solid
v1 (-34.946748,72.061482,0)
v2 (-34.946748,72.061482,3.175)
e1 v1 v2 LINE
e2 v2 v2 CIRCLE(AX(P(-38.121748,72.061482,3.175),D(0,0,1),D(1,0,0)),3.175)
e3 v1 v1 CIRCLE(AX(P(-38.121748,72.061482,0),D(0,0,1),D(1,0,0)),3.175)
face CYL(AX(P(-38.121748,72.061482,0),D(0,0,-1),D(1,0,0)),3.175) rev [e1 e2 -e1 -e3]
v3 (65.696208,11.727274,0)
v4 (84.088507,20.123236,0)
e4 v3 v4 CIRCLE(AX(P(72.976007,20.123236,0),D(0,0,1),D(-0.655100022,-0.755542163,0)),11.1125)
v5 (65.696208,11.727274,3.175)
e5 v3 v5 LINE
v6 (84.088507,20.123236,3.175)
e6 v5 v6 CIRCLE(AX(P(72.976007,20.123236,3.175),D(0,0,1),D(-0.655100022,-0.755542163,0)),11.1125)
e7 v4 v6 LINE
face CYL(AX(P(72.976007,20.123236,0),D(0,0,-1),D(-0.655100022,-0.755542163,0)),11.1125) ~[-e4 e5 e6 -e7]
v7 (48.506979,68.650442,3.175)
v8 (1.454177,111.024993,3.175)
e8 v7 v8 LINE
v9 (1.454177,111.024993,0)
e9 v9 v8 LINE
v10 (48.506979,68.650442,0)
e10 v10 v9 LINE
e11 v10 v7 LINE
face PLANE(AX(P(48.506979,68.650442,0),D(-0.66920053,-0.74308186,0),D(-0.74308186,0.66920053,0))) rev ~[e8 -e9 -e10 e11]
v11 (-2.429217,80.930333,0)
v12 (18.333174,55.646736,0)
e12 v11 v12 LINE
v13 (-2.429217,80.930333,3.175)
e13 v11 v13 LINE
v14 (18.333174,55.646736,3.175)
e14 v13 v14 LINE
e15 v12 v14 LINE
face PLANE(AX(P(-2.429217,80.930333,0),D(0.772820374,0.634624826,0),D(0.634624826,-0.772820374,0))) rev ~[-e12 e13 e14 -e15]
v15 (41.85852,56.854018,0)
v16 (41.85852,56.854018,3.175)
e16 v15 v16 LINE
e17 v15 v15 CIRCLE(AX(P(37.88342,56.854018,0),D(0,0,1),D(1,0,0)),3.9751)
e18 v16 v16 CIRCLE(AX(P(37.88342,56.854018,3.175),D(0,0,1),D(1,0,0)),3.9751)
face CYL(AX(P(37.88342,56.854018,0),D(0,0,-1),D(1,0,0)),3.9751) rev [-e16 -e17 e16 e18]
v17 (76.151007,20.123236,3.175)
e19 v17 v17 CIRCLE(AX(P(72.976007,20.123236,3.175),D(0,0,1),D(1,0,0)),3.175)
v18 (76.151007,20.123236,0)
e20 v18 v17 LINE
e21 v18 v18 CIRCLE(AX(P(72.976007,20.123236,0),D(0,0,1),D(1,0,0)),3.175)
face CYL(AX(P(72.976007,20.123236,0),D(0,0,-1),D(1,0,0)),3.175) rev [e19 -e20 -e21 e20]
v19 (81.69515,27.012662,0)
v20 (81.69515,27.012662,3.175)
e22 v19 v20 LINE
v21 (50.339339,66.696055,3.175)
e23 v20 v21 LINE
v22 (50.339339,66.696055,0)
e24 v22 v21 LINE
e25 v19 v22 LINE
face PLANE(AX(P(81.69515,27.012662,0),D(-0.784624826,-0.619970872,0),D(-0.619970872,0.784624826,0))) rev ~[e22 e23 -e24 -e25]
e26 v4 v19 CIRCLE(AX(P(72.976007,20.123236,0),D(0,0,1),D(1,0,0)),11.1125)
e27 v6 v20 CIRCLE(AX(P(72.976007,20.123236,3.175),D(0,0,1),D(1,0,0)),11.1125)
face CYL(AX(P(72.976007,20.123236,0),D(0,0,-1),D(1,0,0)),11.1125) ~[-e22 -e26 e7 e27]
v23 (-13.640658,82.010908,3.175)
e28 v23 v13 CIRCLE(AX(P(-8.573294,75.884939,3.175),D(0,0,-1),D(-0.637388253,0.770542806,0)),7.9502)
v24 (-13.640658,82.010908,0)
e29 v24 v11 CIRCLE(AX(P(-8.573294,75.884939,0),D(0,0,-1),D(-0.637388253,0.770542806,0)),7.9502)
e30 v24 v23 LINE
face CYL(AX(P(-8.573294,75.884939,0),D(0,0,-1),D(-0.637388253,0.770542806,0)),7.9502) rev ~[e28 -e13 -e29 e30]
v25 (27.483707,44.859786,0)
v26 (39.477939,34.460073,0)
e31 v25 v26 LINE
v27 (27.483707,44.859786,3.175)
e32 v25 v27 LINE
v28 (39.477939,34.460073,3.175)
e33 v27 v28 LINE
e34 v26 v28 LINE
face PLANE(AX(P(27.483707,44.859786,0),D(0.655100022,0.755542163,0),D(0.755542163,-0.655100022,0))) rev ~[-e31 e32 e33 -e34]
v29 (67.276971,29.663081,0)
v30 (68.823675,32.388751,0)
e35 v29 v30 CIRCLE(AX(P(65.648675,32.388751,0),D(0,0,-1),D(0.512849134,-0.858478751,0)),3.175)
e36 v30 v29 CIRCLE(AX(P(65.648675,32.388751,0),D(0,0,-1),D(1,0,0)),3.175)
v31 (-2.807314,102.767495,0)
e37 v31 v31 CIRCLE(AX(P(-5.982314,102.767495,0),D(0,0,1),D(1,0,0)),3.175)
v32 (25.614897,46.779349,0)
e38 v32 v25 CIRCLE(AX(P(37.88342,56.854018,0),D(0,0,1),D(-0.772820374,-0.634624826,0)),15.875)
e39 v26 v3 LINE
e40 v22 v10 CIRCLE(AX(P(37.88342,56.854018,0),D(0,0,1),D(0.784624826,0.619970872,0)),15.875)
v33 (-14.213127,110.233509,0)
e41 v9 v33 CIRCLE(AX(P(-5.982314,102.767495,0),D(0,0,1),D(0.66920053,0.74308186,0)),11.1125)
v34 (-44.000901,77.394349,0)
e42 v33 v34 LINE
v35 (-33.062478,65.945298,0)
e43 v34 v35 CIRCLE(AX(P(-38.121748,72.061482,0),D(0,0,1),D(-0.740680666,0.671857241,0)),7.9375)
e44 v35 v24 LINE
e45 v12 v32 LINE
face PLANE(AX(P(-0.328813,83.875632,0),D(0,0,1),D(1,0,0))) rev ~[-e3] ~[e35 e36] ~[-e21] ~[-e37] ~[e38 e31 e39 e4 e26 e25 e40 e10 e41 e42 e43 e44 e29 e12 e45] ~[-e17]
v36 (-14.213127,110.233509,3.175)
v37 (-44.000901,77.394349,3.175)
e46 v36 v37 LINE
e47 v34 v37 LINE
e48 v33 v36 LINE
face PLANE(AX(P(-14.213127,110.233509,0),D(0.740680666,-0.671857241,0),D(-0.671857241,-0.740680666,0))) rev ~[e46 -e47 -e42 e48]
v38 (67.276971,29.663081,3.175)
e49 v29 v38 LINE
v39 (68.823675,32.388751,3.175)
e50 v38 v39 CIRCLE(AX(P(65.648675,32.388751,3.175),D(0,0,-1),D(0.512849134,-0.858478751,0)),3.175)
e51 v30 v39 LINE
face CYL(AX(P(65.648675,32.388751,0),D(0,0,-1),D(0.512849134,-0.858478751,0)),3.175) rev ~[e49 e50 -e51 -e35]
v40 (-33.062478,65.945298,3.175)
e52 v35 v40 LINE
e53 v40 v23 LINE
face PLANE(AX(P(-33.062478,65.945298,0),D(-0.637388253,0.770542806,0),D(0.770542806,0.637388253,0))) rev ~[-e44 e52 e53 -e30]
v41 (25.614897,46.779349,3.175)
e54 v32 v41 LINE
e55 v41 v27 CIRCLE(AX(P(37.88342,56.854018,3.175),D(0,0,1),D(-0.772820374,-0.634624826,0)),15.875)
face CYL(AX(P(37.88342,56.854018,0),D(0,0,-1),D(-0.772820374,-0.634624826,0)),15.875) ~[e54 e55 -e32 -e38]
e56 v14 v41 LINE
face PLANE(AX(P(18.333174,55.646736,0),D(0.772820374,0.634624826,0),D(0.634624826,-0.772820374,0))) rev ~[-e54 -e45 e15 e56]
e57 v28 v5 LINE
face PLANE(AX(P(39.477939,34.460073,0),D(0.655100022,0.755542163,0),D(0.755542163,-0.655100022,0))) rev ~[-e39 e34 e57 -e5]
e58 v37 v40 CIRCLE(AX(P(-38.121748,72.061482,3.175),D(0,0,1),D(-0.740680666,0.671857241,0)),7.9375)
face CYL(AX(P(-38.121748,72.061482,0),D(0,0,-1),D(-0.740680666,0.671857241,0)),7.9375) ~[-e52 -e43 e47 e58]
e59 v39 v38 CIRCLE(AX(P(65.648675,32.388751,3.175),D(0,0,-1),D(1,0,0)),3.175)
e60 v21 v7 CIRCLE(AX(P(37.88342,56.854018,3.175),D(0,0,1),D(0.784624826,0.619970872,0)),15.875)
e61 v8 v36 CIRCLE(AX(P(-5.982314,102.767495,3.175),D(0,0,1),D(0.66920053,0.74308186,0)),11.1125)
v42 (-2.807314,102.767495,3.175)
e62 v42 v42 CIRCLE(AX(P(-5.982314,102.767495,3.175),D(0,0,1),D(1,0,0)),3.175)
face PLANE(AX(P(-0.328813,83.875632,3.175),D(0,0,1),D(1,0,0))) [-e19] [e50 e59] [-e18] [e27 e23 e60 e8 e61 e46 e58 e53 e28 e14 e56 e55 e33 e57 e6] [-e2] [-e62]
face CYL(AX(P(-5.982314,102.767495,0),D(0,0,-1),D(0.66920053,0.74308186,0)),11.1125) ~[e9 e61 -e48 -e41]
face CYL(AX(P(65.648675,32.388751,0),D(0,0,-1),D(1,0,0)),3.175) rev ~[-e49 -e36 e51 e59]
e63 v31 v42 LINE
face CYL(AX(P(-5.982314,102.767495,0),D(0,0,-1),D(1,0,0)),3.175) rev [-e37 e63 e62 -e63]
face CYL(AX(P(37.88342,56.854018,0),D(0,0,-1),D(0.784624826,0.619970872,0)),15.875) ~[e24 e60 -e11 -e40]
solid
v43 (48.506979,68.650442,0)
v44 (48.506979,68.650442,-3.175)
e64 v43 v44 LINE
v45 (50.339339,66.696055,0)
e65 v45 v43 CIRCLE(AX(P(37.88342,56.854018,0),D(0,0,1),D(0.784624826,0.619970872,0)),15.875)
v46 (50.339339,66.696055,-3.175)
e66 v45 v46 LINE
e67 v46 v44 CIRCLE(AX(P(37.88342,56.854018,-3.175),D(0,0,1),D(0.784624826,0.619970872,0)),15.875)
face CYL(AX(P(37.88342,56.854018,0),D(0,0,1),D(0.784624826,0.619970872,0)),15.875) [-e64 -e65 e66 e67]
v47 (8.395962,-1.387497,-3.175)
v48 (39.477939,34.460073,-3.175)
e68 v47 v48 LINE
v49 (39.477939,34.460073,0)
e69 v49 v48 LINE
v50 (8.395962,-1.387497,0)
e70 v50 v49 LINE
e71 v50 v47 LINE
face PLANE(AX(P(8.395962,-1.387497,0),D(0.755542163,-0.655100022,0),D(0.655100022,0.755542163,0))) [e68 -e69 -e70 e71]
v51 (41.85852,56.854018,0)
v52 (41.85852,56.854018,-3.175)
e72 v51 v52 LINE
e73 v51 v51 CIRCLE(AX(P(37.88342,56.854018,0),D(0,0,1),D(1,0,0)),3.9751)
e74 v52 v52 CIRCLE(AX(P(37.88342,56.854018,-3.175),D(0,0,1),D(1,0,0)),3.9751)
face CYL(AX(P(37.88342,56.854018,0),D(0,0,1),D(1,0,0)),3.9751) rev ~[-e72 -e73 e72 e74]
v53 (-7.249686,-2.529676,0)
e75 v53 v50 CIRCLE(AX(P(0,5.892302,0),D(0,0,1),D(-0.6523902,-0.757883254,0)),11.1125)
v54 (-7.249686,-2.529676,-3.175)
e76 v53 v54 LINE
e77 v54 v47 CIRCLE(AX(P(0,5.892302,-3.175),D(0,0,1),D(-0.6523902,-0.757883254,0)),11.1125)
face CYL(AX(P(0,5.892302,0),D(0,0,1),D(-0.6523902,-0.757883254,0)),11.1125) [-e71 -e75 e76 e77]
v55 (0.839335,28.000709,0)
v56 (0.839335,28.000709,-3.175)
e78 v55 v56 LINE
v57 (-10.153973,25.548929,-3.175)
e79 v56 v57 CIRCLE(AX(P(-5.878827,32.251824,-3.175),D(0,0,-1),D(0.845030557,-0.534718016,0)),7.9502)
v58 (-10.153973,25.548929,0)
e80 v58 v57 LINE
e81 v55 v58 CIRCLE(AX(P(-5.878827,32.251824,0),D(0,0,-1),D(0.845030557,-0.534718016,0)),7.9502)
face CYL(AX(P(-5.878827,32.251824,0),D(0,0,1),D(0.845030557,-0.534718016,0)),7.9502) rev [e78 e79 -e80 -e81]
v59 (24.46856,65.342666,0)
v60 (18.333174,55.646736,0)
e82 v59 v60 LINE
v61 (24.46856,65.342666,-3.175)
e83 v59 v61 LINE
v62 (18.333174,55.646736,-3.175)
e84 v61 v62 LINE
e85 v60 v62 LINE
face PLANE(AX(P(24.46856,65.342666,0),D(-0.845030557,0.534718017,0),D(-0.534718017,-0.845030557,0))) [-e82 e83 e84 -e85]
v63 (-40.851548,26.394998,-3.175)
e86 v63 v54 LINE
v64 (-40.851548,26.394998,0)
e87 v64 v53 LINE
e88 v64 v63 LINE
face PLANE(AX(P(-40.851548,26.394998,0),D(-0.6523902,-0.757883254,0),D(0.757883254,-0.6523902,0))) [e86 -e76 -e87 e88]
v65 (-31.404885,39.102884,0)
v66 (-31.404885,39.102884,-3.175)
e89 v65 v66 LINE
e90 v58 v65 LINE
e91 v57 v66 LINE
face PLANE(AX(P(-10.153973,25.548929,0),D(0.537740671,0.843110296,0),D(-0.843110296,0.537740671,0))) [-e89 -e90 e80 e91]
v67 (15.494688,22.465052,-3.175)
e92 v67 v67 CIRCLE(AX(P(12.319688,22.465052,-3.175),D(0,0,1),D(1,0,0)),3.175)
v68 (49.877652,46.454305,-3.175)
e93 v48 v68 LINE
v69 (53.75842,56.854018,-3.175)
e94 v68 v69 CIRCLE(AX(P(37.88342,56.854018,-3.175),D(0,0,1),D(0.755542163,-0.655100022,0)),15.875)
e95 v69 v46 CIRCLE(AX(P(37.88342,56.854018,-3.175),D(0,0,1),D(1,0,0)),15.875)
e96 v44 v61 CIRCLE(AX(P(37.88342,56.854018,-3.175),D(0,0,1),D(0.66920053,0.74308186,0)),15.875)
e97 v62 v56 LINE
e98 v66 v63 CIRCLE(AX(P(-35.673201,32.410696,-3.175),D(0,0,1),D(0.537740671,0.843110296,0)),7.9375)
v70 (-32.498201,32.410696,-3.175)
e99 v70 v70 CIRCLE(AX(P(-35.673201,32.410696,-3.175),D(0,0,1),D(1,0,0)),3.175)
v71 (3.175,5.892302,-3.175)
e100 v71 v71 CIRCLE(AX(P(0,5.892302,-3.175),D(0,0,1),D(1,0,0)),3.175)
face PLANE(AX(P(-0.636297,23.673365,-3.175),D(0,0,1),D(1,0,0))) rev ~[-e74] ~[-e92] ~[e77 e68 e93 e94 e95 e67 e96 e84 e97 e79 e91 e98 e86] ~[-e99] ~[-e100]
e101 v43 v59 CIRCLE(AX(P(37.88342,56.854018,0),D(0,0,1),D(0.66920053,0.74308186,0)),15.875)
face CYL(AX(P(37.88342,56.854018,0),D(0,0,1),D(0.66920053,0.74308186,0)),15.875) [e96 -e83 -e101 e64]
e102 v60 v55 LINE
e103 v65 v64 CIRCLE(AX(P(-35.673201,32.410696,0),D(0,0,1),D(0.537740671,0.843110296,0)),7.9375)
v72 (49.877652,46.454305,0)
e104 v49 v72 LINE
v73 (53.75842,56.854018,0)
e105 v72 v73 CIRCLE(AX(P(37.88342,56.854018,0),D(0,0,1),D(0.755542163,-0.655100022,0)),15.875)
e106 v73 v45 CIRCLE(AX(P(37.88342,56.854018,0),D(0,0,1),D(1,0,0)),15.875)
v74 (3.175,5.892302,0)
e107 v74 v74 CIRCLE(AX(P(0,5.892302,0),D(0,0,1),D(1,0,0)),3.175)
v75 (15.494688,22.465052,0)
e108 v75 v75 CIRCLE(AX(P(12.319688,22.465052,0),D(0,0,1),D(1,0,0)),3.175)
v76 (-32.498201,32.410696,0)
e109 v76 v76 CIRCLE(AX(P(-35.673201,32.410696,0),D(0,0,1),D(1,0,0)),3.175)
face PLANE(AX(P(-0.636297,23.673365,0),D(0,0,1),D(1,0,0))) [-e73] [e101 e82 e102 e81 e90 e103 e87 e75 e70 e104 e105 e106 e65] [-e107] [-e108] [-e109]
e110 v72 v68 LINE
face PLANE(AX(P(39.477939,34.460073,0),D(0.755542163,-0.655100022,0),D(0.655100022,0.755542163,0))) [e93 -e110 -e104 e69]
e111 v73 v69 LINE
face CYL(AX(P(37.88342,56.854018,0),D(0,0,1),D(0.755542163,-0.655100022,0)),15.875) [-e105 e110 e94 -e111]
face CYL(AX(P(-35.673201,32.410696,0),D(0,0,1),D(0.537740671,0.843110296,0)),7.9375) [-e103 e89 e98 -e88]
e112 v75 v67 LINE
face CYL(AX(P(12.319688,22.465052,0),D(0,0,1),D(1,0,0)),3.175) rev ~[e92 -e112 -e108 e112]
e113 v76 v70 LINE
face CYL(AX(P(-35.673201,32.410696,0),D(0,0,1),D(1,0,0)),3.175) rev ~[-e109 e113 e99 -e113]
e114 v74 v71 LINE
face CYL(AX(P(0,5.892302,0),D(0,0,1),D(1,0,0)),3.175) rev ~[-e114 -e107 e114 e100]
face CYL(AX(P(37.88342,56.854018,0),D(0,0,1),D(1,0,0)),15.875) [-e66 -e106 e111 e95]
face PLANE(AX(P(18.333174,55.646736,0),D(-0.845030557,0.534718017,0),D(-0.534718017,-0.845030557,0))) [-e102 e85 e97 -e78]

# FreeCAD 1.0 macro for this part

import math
import FreeCAD as App
import Part
import Sketcher

V = App.Vector
Q = App.Units.Quantity

doc = App.newDocument("Part")
body = doc.addObject("PartDesign::Body", "Body")

# Sketch on XY plane
sketch1 = body.newObject("Sketcher::SketchObject", "Sketch")
sketch1.AttachmentSupport = (doc.getObject("XY_Plane"), [""])
sketch1.MapMode = "FlatFace"
sketch1.addGeometry([
    Part.LineSegment(V(-14.213127, 110.233509, 0), V(-44.000901, 77.394349, 0)),  # 0
    Part.ArcOfCircle(Part.Circle(V(-38.121748, 72.061482, 0), V(0, 0, 1), 7.9375), math.radians(137.78943), math.radians(309.597343)),  # 1
    Part.LineSegment(V(-33.062478, 65.945298, 0), V(-13.640658, 82.010908, 0)),  # 2
    Part.ArcOfCircle(Part.Circle(V(-8.573294, 75.884939, 0), V(0, 0, 1), 7.9502), math.radians(39.392164), math.radians(129.597343)),  # 3
    Part.LineSegment(V(-2.429217, 80.930333, 0), V(18.333174, 55.646736, 0)),  # 4
    Part.LineSegment(V(18.333174, 55.646736, 0), V(25.614897, 46.779349, 0)),  # 5
    Part.ArcOfCircle(Part.Circle(V(37.88342, 56.854018, 0), V(0, 0, 1), 15.875), math.radians(-140.607836), math.radians(-130.927235)),  # 6
    Part.LineSegment(V(27.483707, 44.859786, 0), V(39.477939, 34.460073, 0)),  # 7
    Part.LineSegment(V(39.477939, 34.460073, 0), V(65.696208, 11.727274, 0)),  # 8
    Part.ArcOfCircle(Part.Circle(V(72.976007, 20.123236, 0), V(0, 0, 1), 11.1125), math.radians(-130.927235), math.radians(0)),  # 9
    Part.ArcOfCircle(Part.Circle(V(72.976007, 20.123236, 0), V(0, 0, 1), 11.1125), math.radians(0), math.radians(38.314007)),  # 10
    Part.LineSegment(V(81.69515, 27.012662, 0), V(50.339339, 66.696055, 0)),  # 11
    Part.ArcOfCircle(Part.Circle(V(37.88342, 56.854018, 0), V(0, 0, 1), 15.875), math.radians(38.314007), math.radians(47.994609)),  # 12
    Part.LineSegment(V(48.506979, 68.650442, 0), V(1.454177, 111.024993, 0)),  # 13
    Part.ArcOfCircle(Part.Circle(V(-5.982314, 102.767495, 0), V(0, 0, 1), 11.1125), math.radians(47.994609), math.radians(137.78943)),  # 14
    Part.Circle(V(72.976007, 20.123236, 0), V(0, 0, 1), 3.175),  # 15
    Part.ArcOfCircle(Part.Circle(V(65.648675, 32.388751, 0), V(0, 0, 1), 3.175), math.radians(-59.146204), math.radians(0)),  # 16
    Part.ArcOfCircle(Part.Circle(V(65.648675, 32.388751, 0), V(0, 0, 1), 3.175), math.radians(0), math.radians(300.853796)),  # 17
    Part.Circle(V(37.88342, 56.854018, 0), V(0, 0, 1), 3.9751),  # 18
    Part.Circle(V(-38.121748, 72.061482, 0), V(0, 0, 1), 3.175),  # 19
    Part.Circle(V(-5.982314, 102.767495, 0), V(0, 0, 1), 3.175),  # 20
], False)
sketch1.addConstraint([
    Sketcher.Constraint("Tangent", 0, 2, 1, 1),
    Sketcher.Constraint("Tangent", 1, 2, 2, 1),
    Sketcher.Constraint("Tangent", 2, 2, 3, 2),
    Sketcher.Constraint("Tangent", 3, 1, 4, 1),
    Sketcher.Constraint("Coincident", 4, 2, 5, 1),
    Sketcher.Constraint("Tangent", 5, 2, 6, 1),
    Sketcher.Constraint("Tangent", 6, 2, 7, 1),
    Sketcher.Constraint("Coincident", 7, 2, 8, 1),
    Sketcher.Constraint("Tangent", 8, 2, 9, 1),
    Sketcher.Constraint("Tangent", 9, 2, 10, 1),
    Sketcher.Constraint("Tangent", 10, 2, 11, 1),
    Sketcher.Constraint("Tangent", 11, 2, 12, 1),
    Sketcher.Constraint("Tangent", 12, 2, 13, 1),
    Sketcher.Constraint("Tangent", 13, 2, 14, 1),
    Sketcher.Constraint("Tangent", 14, 2, 0, 1),
    Sketcher.Constraint("Tangent", 16, 1, 17, 2),
    Sketcher.Constraint("Coincident", 17, 1, 16, 2),
    Sketcher.Constraint("Coincident", 12, 3, 6, 3),
    Sketcher.Constraint("Coincident", 15, 3, 9, 3),
    Sketcher.Constraint("Coincident", 18, 3, 6, 3),
    Sketcher.Constraint("Coincident", 19, 3, 1, 3),
    Sketcher.Constraint("Coincident", 20, 3, 14, 3),
    Sketcher.Constraint("Equal", 9, 10),
    Sketcher.Constraint("Equal", 6, 12),
    Sketcher.Constraint("Equal", 10, 14),
    Sketcher.Constraint("Equal", 15, 16),
    Sketcher.Constraint("Equal", 17, 19),
    Sketcher.Constraint("Equal", 19, 20),
    Sketcher.Constraint("Parallel", 4, 5),
    Sketcher.Constraint("Parallel", 7, 8),
    Sketcher.Constraint("Horizontal", 15, 3, 9, 2),
    Sketcher.Constraint("Horizontal", 16, 3, 17, 1),
    Sketcher.Constraint("Diameter", 15, Q("0.25 in")),
    Sketcher.Constraint("Diameter", 18, Q("0.313 in")),
    Sketcher.Constraint("Radius", 1, Q("0.3125 in")),
    Sketcher.Constraint("Radius", 3, Q("0.313 in")),
    Sketcher.Constraint("Radius", 6, Q("0.625 in")),
    Sketcher.Constraint("Radius", 9, Q("0.4375 in")),
    Sketcher.Constraint("Distance", 7, Q("0.625 in")),
    Sketcher.Constraint("DistanceX", 0, 2, -1, 1, 44.000901),
    Sketcher.Constraint("DistanceY", -1, 1, 1, 2, 65.945298),
    Sketcher.Constraint("DistanceX", 3, 3, 9, 3, 81.549301),
    Sketcher.Constraint("DistanceX", 8, 2, 9, 3, 7.279799),
    Sketcher.Constraint("DistanceY", 2, 2, 14, 2, 28.222601),
    Sketcher.Constraint("Distance", 4, 32.716008),
    Sketcher.Constraint("Distance", 5, 11.474059),
    Sketcher.Constraint("DistanceY", -1, 1, 1, 3, 72.061482),
    Sketcher.Constraint("DistanceY", -1, 1, 3, 3, 75.884939),
    Sketcher.Constraint("DistanceX", -1, 1, 6, 3, 37.88342),
    Sketcher.Constraint("DistanceY", -1, 1, 16, 3, 32.388751),
    Sketcher.Constraint("DistanceY", -1, 1, 0, 2, 77.394349),
    Sketcher.Constraint("DistanceX", -1, 1, 16, 1, 67.276971),
    Sketcher.Constraint("DistanceY", -1, 1, 16, 1, 29.663081),
])
pad1 = body.newObject("PartDesign::Pad", "Pad")
pad1.Profile = sketch1
pad1.Length = Q("0.125 in")
body2 = doc.addObject("PartDesign::Body", "Body001")

# Sketch on XY plane
sketch2 = body2.newObject("Sketcher::SketchObject", "Sketch001")
sketch2.AttachmentSupport = (doc.getObject("XY_Plane001"), [""])
sketch2.MapMode = "FlatFace"
sketch2.addGeometry([
    Part.LineSegment(V(18.333174, 55.646736, 0), V(0.839335, 28.000709, 0)),  # 0
    Part.ArcOfCircle(Part.Circle(V(-5.878827, 32.251824, 0), V(0, 0, 1), 7.9502), math.radians(-122.529969), math.radians(-32.32479)),  # 1
    Part.LineSegment(V(-10.153973, 25.548929, 0), V(-31.404885, 39.102884, 0)),  # 2
    Part.ArcOfCircle(Part.Circle(V(-35.673201, 32.410696, 0), V(0, 0, 1), 7.9375), math.radians(57.470031), math.radians(229.277944)),  # 3
    Part.LineSegment(V(-40.851548, 26.394998, 0), V(-7.249686, -2.529676, 0)),  # 4
    Part.ArcOfCircle(Part.Circle(V(0, 5.892302, 0), V(0, 0, 1), 11.1125), math.radians(-130.722056), math.radians(-40.927235)),  # 5
    Part.LineSegment(V(8.395962, -1.387497, 0), V(39.477939, 34.460073, 0)),  # 6
    Part.LineSegment(V(39.477939, 34.460073, 0), V(49.877652, 46.454305, 0)),  # 7
    Part.ArcOfCircle(Part.Circle(V(37.88342, 56.854018, 0), V(0, 0, 1), 15.875), math.radians(-40.927235), math.radians(0)),  # 8
    Part.ArcOfCircle(Part.Circle(V(37.88342, 56.854018, 0), V(0, 0, 1), 15.875), math.radians(0), math.radians(38.314007)),  # 9
    Part.ArcOfCircle(Part.Circle(V(37.88342, 56.854018, 0), V(0, 0, 1), 15.875), math.radians(38.314007), math.radians(47.994609)),  # 10
    Part.ArcOfCircle(Part.Circle(V(37.88342, 56.854018, 0), V(0, 0, 1), 15.875), math.radians(47.994609), math.radians(147.67521)),  # 11
    Part.LineSegment(V(24.46856, 65.342666, 0), V(18.333174, 55.646736, 0)),  # 12
    Part.Circle(V(0, 5.892302, 0), V(0, 0, 1), 3.175),  # 13
    Part.Circle(V(12.319688, 22.465052, 0), V(0, 0, 1), 3.175),  # 14
    Part.Circle(V(-35.673201, 32.410696, 0), V(0, 0, 1), 3.175),  # 15
    Part.Circle(V(37.88342, 56.854018, 0), V(0, 0, 1), 3.9751),  # 16
], False)
sketch2.addConstraint([
    Sketcher.Constraint("Tangent", 0, 2, 1, 2),
    Sketcher.Constraint("Tangent", 1, 1, 2, 1),
    Sketcher.Constraint("Tangent", 2, 2, 3, 1),
    Sketcher.Constraint("Tangent", 3, 2, 4, 1),
    Sketcher.Constraint("Tangent", 4, 2, 5, 1),
    Sketcher.Constraint("Tangent", 5, 2, 6, 1),
    Sketcher.Constraint("Coincident", 6, 2, 7, 1),
    Sketcher.Constraint("Tangent", 7, 2, 8, 1),
    Sketcher.Constraint("Tangent", 8, 2, 9, 1),
    Sketcher.Constraint("Tangent", 9, 2, 10, 1),
    Sketcher.Constraint("Tangent", 10, 2, 11, 1),
    Sketcher.Constraint("Tangent", 11, 2, 12, 1),
    Sketcher.Constraint("Coincident", 12, 2, 0, 1),
    Sketcher.Constraint("Coincident", 10, 3, 8, 3),
    Sketcher.Constraint("Coincident", 13, 3, 5, 3),
    Sketcher.Constraint("Coincident", 15, 3, 3, 3),
    Sketcher.Constraint("Coincident", 16, 3, 8, 3),
    Sketcher.Constraint("Equal", 10, 11),
    Sketcher.Constraint("Equal", 13, 14),
    Sketcher.Constraint("Equal", 14, 15),
    Sketcher.Constraint("PointOnObject", 5, 3, -2),
    Sketcher.Constraint("Parallel", 6, 7),
    Sketcher.Constraint("Parallel", 0, 12),
    Sketcher.Constraint("Horizontal", 16, 3, 8, 2),
    Sketcher.Constraint("Diameter", 13, Q("0.25 in")),
    Sketcher.Constraint("Diameter", 16, Q("0.313 in")),
    Sketcher.Constraint("Radius", 1, Q("0.313 in")),
    Sketcher.Constraint("Radius", 3, Q("0.3125 in")),
    Sketcher.Constraint("Radius", 5, Q("0.4375 in")),
    Sketcher.Constraint("Radius", 8, Q("0.625 in")),
    Sketcher.Constraint("Distance", 7, Q("0.625 in")),
    Sketcher.Constraint("DistanceX", 3, 3, -1, 1, 35.673201),
    Sketcher.Constraint("DistanceY", 3, 2, 3, 3, 6.015698),
    Sketcher.Constraint("DistanceY", 5, 2, 5, 3, 7.279799),
    Sketcher.Constraint("Distance", 0, 32.716008),
    Sketcher.Constraint("Distance", 12, 11.474059),
    Sketcher.Constraint("DistanceX", -1, 1, 8, 3, 37.88342),
    Sketcher.Constraint("DistanceX", -1, 1, 14, 3, 12.319688),
    Sketcher.Constraint("DistanceY", -1, 1, 0, 2, 28.000709),
    Sketcher.Constraint("DistanceY", -1, 1, 1, 1, 25.548929),
    Sketcher.Constraint("DistanceX", -1, 1, 9, 2, 50.339339),
    Sketcher.Constraint("DistanceX", -1, 1, 10, 2, 48.506979),
    Sketcher.Constraint("DistanceY", 5, 3, 14, 3, 16.57275),
])
pad2 = body2.newObject("PartDesign::Pad", "Pad001")
pad2.Profile = sketch2
pad2.Length = Q("0.125 in")
pad2.Reversed = True

doc.recompute()
